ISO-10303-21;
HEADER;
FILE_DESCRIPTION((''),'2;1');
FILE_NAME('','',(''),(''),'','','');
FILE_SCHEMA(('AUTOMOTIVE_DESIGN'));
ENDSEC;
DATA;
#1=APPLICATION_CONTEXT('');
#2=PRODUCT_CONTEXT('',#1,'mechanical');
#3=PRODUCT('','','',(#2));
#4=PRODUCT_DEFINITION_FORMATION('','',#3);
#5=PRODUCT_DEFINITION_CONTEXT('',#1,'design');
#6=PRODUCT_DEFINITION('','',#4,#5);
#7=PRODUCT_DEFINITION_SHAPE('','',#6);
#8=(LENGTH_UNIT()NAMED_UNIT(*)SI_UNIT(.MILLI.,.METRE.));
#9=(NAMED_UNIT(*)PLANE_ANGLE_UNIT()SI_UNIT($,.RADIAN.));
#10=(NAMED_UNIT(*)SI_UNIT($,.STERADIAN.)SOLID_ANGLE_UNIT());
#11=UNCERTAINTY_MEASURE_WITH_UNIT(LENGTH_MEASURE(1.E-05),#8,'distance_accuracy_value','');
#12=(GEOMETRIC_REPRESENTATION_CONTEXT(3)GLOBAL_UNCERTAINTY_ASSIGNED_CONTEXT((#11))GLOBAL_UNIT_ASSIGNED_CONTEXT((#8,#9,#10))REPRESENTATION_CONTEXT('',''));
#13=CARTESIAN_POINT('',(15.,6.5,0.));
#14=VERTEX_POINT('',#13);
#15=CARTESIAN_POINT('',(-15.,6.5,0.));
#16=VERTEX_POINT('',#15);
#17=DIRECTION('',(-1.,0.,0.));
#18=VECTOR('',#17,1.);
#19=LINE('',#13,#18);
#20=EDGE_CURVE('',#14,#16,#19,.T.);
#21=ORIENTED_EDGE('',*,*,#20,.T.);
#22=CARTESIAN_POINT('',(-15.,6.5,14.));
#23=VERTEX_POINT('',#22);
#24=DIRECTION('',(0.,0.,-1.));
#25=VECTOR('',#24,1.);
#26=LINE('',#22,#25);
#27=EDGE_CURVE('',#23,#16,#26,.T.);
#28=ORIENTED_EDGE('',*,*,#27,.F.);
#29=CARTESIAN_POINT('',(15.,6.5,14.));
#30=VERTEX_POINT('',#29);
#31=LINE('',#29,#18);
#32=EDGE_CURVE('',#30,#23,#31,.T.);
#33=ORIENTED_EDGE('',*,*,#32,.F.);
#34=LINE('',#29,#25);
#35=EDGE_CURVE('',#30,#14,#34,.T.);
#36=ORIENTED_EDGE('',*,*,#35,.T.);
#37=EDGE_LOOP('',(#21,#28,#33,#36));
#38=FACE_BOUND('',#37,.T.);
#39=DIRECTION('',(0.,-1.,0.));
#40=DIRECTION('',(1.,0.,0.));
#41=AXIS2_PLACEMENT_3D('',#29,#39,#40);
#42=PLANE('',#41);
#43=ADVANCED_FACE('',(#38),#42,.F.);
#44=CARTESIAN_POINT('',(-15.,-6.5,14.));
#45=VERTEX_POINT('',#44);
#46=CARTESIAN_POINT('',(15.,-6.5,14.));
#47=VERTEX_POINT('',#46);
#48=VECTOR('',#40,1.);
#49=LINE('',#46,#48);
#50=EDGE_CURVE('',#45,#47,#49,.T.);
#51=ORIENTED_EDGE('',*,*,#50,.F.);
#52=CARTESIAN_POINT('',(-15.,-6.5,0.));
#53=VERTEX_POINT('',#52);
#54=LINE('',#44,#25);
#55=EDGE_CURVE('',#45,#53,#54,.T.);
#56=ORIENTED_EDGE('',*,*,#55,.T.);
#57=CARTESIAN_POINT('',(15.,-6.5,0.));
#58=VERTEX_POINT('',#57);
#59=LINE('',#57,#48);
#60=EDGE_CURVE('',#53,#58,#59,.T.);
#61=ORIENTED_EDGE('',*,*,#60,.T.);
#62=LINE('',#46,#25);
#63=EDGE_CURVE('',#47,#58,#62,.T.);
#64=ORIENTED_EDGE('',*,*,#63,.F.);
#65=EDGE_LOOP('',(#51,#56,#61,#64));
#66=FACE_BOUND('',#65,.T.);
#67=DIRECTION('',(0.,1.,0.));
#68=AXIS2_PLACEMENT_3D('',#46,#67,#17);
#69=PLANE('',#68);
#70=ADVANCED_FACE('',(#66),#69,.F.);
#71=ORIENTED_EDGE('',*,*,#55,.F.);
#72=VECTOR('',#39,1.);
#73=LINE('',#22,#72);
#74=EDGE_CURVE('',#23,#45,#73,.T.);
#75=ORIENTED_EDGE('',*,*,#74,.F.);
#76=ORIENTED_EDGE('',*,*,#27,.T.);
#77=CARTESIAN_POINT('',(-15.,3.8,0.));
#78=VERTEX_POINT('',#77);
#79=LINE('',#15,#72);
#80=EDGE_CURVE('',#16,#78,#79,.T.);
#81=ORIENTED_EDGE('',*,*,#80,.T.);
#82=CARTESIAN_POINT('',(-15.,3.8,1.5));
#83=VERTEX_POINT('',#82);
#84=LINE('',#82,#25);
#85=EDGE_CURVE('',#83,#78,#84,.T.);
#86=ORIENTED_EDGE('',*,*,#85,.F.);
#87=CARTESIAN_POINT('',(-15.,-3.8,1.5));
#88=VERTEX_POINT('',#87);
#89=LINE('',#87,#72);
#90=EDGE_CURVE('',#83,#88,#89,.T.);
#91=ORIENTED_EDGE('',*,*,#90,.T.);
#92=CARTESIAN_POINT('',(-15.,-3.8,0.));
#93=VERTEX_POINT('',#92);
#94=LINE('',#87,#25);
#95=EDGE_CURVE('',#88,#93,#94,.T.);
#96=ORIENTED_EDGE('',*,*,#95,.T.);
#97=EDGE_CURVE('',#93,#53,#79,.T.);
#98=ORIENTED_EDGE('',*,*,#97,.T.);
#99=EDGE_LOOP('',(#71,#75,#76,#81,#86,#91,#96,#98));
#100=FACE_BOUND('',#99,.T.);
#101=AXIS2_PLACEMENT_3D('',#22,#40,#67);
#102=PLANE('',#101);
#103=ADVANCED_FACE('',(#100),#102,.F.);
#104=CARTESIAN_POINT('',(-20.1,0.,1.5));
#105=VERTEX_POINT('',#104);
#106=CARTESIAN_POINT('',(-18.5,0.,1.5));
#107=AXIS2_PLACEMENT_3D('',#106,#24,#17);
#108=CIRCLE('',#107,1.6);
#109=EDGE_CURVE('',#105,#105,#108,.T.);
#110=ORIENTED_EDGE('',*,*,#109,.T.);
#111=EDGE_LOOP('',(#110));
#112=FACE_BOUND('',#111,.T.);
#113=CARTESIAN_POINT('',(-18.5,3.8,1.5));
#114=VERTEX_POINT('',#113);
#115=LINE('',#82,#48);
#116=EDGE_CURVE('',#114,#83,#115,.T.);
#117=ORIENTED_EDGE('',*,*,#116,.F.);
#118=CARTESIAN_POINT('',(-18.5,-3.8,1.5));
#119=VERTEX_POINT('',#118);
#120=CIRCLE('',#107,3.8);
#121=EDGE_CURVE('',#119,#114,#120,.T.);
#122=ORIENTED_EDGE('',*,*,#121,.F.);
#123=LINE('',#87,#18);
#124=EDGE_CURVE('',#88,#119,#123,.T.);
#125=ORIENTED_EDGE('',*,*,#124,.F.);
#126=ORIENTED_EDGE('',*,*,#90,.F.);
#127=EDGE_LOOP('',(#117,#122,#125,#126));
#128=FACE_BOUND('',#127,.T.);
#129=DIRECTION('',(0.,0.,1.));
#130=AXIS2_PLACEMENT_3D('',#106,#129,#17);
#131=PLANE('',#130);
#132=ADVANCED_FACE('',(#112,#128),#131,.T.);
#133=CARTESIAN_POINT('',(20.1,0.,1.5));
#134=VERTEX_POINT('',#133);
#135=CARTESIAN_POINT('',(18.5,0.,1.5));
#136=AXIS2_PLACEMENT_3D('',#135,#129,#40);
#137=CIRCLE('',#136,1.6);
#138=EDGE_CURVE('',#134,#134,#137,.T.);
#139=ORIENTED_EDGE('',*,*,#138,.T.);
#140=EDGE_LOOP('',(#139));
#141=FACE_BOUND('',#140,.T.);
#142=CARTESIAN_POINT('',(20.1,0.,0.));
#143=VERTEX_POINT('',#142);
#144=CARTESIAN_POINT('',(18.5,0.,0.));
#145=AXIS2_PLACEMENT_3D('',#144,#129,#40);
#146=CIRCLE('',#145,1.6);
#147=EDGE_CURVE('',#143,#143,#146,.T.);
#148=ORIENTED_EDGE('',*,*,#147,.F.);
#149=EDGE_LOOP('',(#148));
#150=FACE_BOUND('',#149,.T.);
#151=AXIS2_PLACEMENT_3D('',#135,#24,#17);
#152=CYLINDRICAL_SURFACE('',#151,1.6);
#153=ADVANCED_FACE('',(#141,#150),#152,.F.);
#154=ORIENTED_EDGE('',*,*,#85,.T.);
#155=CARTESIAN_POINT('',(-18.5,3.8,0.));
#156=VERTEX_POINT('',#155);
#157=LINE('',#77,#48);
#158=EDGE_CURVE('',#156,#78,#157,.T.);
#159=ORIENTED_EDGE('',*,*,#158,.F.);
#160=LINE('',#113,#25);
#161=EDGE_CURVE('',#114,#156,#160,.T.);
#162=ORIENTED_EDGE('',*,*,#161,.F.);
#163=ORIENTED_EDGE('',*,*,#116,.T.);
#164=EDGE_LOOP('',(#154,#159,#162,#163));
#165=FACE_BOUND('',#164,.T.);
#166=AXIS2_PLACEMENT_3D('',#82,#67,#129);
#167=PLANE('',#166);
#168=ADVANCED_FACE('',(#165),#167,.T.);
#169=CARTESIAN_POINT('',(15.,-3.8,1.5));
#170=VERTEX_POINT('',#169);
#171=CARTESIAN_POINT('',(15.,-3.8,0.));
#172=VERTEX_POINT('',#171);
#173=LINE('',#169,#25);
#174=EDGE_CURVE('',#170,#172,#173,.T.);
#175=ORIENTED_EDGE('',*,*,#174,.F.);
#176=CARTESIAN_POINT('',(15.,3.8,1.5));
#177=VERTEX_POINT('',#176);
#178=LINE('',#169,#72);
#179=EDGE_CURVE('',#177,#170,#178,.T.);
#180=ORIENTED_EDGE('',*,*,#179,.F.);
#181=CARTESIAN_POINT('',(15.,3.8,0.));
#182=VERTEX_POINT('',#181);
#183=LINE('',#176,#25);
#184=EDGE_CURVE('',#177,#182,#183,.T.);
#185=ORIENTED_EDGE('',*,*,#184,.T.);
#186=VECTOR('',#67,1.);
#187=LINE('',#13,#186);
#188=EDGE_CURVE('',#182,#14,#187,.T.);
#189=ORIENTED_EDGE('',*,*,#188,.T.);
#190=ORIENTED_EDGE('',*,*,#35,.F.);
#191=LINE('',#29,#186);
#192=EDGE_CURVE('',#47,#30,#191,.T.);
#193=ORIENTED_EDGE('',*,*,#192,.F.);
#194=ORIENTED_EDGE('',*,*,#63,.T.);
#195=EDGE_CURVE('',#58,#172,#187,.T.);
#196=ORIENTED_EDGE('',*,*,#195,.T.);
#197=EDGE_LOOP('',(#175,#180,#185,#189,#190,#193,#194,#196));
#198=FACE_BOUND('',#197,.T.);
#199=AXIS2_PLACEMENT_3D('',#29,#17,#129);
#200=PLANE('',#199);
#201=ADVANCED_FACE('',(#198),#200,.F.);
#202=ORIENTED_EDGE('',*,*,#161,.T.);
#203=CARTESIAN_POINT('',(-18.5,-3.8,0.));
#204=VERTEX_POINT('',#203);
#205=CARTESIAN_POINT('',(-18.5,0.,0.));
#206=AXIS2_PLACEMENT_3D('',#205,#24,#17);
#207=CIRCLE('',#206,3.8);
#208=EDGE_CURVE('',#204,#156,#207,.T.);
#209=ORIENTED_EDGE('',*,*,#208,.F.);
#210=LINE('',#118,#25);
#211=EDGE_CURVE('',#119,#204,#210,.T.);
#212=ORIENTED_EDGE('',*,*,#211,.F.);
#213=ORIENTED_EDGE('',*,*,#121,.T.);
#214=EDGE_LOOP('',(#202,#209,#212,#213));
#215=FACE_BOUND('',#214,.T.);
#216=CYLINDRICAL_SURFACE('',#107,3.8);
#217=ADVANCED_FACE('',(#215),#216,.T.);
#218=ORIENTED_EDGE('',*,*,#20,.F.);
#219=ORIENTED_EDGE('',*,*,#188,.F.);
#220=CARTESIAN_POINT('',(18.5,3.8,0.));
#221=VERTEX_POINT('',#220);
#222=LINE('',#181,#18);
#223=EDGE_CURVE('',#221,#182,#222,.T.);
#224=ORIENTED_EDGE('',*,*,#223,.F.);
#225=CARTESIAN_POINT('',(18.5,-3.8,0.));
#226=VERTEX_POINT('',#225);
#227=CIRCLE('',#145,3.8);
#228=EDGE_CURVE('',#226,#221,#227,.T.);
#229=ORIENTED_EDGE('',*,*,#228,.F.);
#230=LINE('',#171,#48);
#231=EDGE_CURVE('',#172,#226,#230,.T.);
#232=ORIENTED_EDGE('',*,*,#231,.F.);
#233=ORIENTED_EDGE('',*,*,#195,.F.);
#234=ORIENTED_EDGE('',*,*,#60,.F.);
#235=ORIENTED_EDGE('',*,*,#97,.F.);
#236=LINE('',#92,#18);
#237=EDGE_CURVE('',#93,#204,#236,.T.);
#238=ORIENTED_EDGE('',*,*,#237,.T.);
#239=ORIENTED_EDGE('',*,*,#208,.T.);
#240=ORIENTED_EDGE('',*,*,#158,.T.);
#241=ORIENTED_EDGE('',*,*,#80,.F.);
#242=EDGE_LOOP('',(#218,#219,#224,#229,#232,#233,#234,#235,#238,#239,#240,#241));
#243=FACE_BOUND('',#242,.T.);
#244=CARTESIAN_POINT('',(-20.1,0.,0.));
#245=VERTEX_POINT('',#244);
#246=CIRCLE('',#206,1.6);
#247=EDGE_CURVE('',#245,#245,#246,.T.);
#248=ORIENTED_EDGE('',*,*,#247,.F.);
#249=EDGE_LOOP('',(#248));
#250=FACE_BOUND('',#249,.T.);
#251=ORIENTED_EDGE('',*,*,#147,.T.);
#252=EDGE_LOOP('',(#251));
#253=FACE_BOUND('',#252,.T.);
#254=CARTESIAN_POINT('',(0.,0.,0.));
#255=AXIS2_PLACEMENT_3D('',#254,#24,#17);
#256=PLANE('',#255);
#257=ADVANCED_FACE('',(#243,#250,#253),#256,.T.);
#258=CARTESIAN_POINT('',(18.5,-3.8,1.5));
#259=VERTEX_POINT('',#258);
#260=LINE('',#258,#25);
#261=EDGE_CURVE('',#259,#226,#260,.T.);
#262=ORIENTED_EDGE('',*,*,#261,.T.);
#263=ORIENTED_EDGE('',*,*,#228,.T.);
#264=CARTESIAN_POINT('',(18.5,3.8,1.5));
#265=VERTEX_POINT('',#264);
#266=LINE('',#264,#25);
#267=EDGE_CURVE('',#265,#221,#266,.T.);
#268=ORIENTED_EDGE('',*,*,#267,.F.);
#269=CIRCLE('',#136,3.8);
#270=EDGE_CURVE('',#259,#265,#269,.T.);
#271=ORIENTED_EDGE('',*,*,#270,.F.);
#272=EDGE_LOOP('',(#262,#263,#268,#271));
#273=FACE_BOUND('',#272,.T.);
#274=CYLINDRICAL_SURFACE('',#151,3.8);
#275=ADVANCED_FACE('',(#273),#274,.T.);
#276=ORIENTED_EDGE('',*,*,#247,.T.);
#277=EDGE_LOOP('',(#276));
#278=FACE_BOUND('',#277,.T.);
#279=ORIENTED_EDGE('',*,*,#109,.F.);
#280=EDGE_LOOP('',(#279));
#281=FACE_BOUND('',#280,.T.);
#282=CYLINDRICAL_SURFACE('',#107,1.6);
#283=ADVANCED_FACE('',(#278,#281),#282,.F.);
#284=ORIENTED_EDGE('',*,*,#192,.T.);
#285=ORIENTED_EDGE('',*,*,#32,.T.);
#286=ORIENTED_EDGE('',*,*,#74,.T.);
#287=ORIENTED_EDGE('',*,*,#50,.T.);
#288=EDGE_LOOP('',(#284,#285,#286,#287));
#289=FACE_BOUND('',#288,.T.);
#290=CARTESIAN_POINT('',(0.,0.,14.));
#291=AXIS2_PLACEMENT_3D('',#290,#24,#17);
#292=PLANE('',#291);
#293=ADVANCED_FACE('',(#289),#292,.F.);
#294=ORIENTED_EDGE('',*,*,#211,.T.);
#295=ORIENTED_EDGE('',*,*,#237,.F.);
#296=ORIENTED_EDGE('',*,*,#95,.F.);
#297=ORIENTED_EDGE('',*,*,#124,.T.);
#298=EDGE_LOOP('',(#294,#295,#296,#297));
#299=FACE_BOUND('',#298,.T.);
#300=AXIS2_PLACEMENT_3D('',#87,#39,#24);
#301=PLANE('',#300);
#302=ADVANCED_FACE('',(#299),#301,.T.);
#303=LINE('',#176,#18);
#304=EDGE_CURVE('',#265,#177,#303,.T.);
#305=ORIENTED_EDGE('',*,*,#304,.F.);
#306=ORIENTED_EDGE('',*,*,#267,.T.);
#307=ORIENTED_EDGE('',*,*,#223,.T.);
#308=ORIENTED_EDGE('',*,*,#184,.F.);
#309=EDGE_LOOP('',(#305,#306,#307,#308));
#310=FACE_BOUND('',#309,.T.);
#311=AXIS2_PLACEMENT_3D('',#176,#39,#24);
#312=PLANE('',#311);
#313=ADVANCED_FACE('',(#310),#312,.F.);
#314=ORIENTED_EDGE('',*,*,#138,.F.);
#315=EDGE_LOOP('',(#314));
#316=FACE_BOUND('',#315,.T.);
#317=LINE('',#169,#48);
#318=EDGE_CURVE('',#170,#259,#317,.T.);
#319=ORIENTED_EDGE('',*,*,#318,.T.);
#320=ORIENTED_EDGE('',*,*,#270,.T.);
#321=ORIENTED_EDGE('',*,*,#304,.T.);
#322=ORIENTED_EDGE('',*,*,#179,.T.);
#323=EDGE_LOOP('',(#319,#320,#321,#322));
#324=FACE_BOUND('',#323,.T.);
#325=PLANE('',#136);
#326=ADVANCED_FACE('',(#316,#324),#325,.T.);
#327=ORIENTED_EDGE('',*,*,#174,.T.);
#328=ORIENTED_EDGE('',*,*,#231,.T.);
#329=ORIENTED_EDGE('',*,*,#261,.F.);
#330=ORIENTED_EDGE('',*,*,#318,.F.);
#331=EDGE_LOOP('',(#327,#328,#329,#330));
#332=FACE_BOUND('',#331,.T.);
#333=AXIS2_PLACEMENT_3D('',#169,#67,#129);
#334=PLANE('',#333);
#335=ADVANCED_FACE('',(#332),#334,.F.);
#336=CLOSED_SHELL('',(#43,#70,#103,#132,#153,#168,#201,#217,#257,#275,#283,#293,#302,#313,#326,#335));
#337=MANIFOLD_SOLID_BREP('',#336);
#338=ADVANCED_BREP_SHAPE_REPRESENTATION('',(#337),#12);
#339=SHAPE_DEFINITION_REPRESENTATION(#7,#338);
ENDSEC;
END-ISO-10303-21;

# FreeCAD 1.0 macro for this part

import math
import FreeCAD as App
import Part
import Sketcher

V = App.Vector


def add_polygon(sketch, points):
    """Adds a closed chain of lines whose ends are joined by coincident constraints."""
    first, n = sketch.GeometryCount, len(points)
    for a, b in zip(points, points[1:] + points[:1]):
        sketch.addGeometry(Part.LineSegment(App.Vector(*a, 0), App.Vector(*b, 0)), False)
    for i in range(n):
        sketch.addConstraint(Sketcher.Constraint("Coincident", first + i, 2, first + (i + 1) % n, 1))

doc = App.newDocument("Part")
body = doc.addObject("PartDesign::Body", "Body")

sketch1 = body.newObject("Sketcher::SketchObject", "Sketch")
sketch1.AttachmentSupport = (doc.getObject("XY_Plane"), [""])
sketch1.MapMode = "FlatFace"
add_polygon(sketch1, [(-15, 6), (-15, -6), (15, -6), (15, 6)])
sketch1.addConstraint([
    Sketcher.Constraint("Vertical", 0),
    Sketcher.Constraint("Horizontal", 1),
    Sketcher.Constraint("Vertical", 2),
    Sketcher.Constraint("Horizontal", 3),
    Sketcher.Constraint("Symmetric", 0, 2, 2, 2, -1, 1),
    Sketcher.Constraint("DistanceX", 1, 1, 1, 2, 30.0),
    Sketcher.Constraint("DistanceY", 0, 2, 0, 1, 13.0),
])
pad1 = body.newObject("PartDesign::Pad", "Pad")
pad1.Profile = sketch1
pad1.Length = 14

sketch2 = body.newObject("Sketcher::SketchObject", "Sketch001")
sketch2.AttachmentSupport = (doc.getObject("XY_Plane"), [""])
sketch2.MapMode = "FlatFace"
sketch2.addGeometry([
    Part.LineSegment(V(15, 3.8, 0), V(15, -3.8, 0)),
    Part.LineSegment(V(15, -3.8, 0), V(18.5, -3.8, 0)),
    Part.ArcOfCircle(Part.Circle(V(18.5, 0, 0), V(0, 0, 1), 3.8), math.radians(-90), math.radians(90)),
    Part.LineSegment(V(18.5, 3.8, 0), V(15, 3.8, 0)),
    Part.Circle(V(18.5, 0, 0), V(0, 0, 1), 1.6),
], False)
sketch2.addConstraint([
    Sketcher.Constraint("Coincident", 0, 2, 1, 1),
    Sketcher.Constraint("Tangent", 1, 2, 2, 1),
    Sketcher.Constraint("Tangent", 2, 2, 3, 1),
    Sketcher.Constraint("Coincident", 3, 2, 0, 1),
    Sketcher.Constraint("Vertical", 0),
    Sketcher.Constraint("Horizontal", 1),
    Sketcher.Constraint("Horizontal", 3),
    Sketcher.Constraint("Coincident", 4, 3, 2, 3),
    Sketcher.Constraint("PointOnObject", 2, 3, -1),
    Sketcher.Constraint("Diameter", 4, 3.2),
    Sketcher.Constraint("Radius", 2, 3.8),
    Sketcher.Constraint("DistanceX", 1, 1, 1, 2, 3.5),
    Sketcher.Constraint("DistanceX", -1, 1, 0, 2, 15.0),
])
pad2 = body.newObject("PartDesign::Pad", "Pad001")
pad2.Profile = sketch2
pad2.Length = 1.5
doc.recompute()

mirrored = body.newObject("PartDesign::Mirrored", "Mirrored")
mirrored.Originals = [pad2]
mirrored.MirrorPlane = (doc.getObject("YZ_Plane"), [""])
body.Tip = mirrored

doc.recompute()
